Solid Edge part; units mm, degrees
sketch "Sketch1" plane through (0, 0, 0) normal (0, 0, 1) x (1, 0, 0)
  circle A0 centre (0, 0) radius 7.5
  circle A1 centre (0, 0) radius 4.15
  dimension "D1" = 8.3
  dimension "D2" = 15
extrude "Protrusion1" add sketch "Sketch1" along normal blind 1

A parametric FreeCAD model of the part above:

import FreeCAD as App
import Part
import Sketcher
from FreeCAD import Vector

doc = App.newDocument("Part")
params = doc.addObject("Spreadsheet::Sheet", "Params")
for row, (alias, value) in enumerate([
    ("sketch1_diameter", "15 mm"),
    ("sketch1_diameter2", "8.3 mm"),
    ("pad1_length", "1 mm"),
], start=1):
    params.set(f"A{row}", alias)
    params.set(f"B{row}", "=" + value)
    params.setAlias(f"B{row}", alias)

body = doc.addObject("PartDesign::Body", "Body")

# Sketch on XY plane
sketch1 = body.newObject("Sketcher::SketchObject", "Sketch")
sketch1.AttachmentSupport = (doc.getObject("XY_Plane"), [""])
sketch1.MapMode = "FlatFace"
sketch1.addGeometry([
    Part.Circle(Vector(0, 0, 0), Vector(0, 0, 1), 7.5),
    Part.Circle(Vector(0, 0, 0), Vector(0, 0, 1), 4.2),
], False)
sketch1.addConstraint([
    Sketcher.Constraint("Coincident", 0, 3, -1, 1),
    Sketcher.Constraint("Coincident", 1, 3, -1, 1),
    Sketcher.Constraint("Diameter", 0, 15.0),
    Sketcher.Constraint("Diameter", 1, 8.3),
])
sketch1.setExpression("Constraints[2]", "Params.sketch1_diameter")
sketch1.setExpression("Constraints[3]", "Params.sketch1_diameter2")
pad1 = body.newObject("PartDesign::Pad", "Pad")
pad1.Profile = sketch1
pad1.setExpression("Length", "Params.pad1_length")

doc.recompute()
